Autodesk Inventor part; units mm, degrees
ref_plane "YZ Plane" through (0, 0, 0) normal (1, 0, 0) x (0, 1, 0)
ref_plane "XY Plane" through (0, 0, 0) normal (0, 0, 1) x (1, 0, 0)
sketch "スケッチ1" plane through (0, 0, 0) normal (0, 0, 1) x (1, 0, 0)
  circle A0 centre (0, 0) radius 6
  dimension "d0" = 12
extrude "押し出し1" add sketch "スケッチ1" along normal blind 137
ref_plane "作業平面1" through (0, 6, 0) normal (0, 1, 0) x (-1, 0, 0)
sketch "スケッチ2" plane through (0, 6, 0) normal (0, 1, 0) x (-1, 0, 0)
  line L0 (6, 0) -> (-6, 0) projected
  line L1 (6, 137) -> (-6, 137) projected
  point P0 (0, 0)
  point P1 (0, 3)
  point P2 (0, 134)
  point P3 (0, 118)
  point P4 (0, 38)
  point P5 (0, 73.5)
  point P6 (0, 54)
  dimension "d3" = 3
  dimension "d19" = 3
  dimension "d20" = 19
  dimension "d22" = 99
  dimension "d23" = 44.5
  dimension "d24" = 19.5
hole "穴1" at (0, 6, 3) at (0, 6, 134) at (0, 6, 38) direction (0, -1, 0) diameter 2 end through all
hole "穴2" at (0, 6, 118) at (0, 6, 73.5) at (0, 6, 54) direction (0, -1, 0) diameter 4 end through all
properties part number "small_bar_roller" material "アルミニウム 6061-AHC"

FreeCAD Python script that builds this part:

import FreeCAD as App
import Part
import Sketcher
from FreeCAD import Vector
Q = App.Units.Quantity

doc = App.newDocument("Part")
params = doc.addObject("Spreadsheet::Sheet", "Params")
for row, (alias, value) in enumerate([
    ("sketch1_diameter", "12 mm"),
    ("pad1_length", "137 mm"),
    ("sketch2_diameter", "2 mm"),
    ("hole_diameter", "2 mm"),
    ("sketch3_diameter", "4 mm"),
    ("hole2_diameter", "4 mm"),
], start=1):
    params.set(f"A{row}", alias)
    params.set(f"B{row}", "=" + value)
    params.setAlias(f"B{row}", alias)

body = doc.addObject("PartDesign::Body", "Body")

# Sketch on XY plane
sketch1 = body.newObject("Sketcher::SketchObject", "Sketch")
sketch1.AttachmentSupport = (doc.getObject("XY_Plane"), [""])
sketch1.MapMode = "FlatFace"
sketch1.addGeometry(Part.Circle(Vector(0, 0, 0), Vector(0, 0, 1), 6), False)
sketch1.addConstraint([
    Sketcher.Constraint("Coincident", 0, 3, -1, 1),
    Sketcher.Constraint("Diameter", 0, Q("12 mm")),
])
sketch1.setExpression("Constraints[1]", "Params.sketch1_diameter")
pad1 = body.newObject("PartDesign::Pad", "Pad")
pad1.Profile = sketch1
pad1.setExpression("Length", "Params.pad1_length")

# Sketch on XZ plane
sketch2 = body.newObject("Sketcher::SketchObject", "Sketch001")
sketch2.AttachmentSupport = (doc.getObject("XZ_Plane"), [""])
sketch2.MapMode = "FlatFace"
sketch2.AttachmentOffset = App.Placement(Vector(0, 0, -6), App.Rotation())
sketch2.addGeometry([
    Part.Circle(Vector(0, 3, 0), Vector(0, 0, 1), 1),
    Part.Circle(Vector(0, 134, 0), Vector(0, 0, 1), 1),
    Part.Circle(Vector(0, 38, 0), Vector(0, 0, 1), 1),
], False)
sketch2.addConstraint([
    Sketcher.Constraint("Equal", 0, 1),
    Sketcher.Constraint("Equal", 1, 2),
    Sketcher.Constraint("PointOnObject", 0, 3, -2),
    Sketcher.Constraint("PointOnObject", 1, 3, -2),
    Sketcher.Constraint("PointOnObject", 2, 3, -2),
    Sketcher.Constraint("Diameter", 0, Q("2 mm")),
    Sketcher.Constraint("DistanceY", -1, 1, 0, 3, Q("3 mm")),
    Sketcher.Constraint("DistanceY", -1, 1, 1, 3, Q("134 mm")),
    Sketcher.Constraint("DistanceY", -1, 1, 2, 3, Q("38 mm")),
])
sketch2.setExpression("Constraints[5]", "Params.sketch2_diameter")
doc.recompute()
hole = body.newObject("PartDesign::Hole", "Hole")
hole.Profile = sketch2
hole.ThreadType = "None"
hole.setExpression("Diameter", "Params.hole_diameter")
hole.DepthType = "ThroughAll"
hole.Reversed = True

# Sketch on XZ plane
sketch3 = body.newObject("Sketcher::SketchObject", "Sketch002")
sketch3.AttachmentSupport = (doc.getObject("XZ_Plane"), [""])
sketch3.MapMode = "FlatFace"
sketch3.AttachmentOffset = App.Placement(Vector(0, 0, -6), App.Rotation())
sketch3.addGeometry([
    Part.Circle(Vector(0, 118, 0), Vector(0, 0, 1), 2),
    Part.Circle(Vector(0, 73.5, 0), Vector(0, 0, 1), 2),
    Part.Circle(Vector(0, 54, 0), Vector(0, 0, 1), 2),
], False)
sketch3.addConstraint([
    Sketcher.Constraint("Equal", 0, 1),
    Sketcher.Constraint("Equal", 1, 2),
    Sketcher.Constraint("PointOnObject", 0, 3, -2),
    Sketcher.Constraint("PointOnObject", 1, 3, -2),
    Sketcher.Constraint("PointOnObject", 2, 3, -2),
    Sketcher.Constraint("Diameter", 0, Q("4 mm")),
    Sketcher.Constraint("DistanceY", -1, 1, 0, 3, Q("118 mm")),
    Sketcher.Constraint("DistanceY", -1, 1, 2, 3, Q("54 mm")),
    Sketcher.Constraint("DistanceY", -1, 1, 1, 3, Q("73.5 mm")),
])
sketch3.setExpression("Constraints[5]", "Params.sketch3_diameter")
doc.recompute()
hole2 = body.newObject("PartDesign::Hole", "Hole001")
hole2.Profile = sketch3
hole2.ThreadType = "None"
hole2.setExpression("Diameter", "Params.hole2_diameter")
hole2.DepthType = "ThroughAll"
hole2.Reversed = True

doc.recompute()
